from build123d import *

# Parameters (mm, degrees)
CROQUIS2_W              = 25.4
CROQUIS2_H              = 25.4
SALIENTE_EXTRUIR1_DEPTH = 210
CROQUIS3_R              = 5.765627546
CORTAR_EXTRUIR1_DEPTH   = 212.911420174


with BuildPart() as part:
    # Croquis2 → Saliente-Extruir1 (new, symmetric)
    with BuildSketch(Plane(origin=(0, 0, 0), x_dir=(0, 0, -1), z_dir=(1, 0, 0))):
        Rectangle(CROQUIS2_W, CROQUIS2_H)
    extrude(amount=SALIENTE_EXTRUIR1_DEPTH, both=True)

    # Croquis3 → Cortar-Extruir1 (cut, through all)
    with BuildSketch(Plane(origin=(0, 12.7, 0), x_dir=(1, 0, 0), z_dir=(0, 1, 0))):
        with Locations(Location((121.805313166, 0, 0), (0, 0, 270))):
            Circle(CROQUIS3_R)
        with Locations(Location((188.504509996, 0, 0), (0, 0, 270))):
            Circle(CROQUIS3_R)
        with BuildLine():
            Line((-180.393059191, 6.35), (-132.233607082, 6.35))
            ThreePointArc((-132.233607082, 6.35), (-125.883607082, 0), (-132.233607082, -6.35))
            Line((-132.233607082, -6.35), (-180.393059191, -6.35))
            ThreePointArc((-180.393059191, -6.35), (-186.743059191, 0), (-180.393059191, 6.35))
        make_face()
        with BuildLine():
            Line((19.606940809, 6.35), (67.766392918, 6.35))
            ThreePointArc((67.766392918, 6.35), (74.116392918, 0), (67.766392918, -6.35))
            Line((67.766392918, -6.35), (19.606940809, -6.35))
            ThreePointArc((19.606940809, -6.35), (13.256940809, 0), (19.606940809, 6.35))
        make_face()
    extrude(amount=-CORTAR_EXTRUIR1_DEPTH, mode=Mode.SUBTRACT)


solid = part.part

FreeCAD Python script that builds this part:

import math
import FreeCAD as App
import Part
import Sketcher

V = App.Vector
Q = App.Units.Quantity


def add_polygon(sketch, points):
    """Adds a closed chain of lines whose ends are joined by coincident constraints."""
    first, n = sketch.GeometryCount, len(points)
    for a, b in zip(points, points[1:] + points[:1]):
        sketch.addGeometry(Part.LineSegment(App.Vector(*a, 0), App.Vector(*b, 0)), False)
    for i in range(n):
        sketch.addConstraint(Sketcher.Constraint("Coincident", first + i, 2, first + (i + 1) % n, 1))

doc = App.newDocument("Part")
body = doc.addObject("PartDesign::Body", "Body")

sketch1 = body.newObject("Sketcher::SketchObject", "Sketch")
sketch1.AttachmentSupport = (doc.getObject("YZ_Plane"), [""])
sketch1.MapMode = "FlatFace"
add_polygon(sketch1, [(13, 13), (-13, 13), (-13, -13), (13, -13)])
sketch1.addConstraint(Sketcher.Constraint("Horizontal", 0))
sketch1.addConstraint(Sketcher.Constraint("Vertical", 1))
sketch1.addConstraint(Sketcher.Constraint("Horizontal", 2))
sketch1.addConstraint(Sketcher.Constraint("Vertical", 3))
sketch1.addConstraint(Sketcher.Constraint("Symmetric", 0, 2, 2, 2, -1, 1))
sketch1.addConstraint(Sketcher.Constraint("Equal", 2, 1))
sketch1.addConstraint(Sketcher.Constraint("DistanceX", 0, 2, 0, 1, Q("1 in")))
pad1 = body.newObject("PartDesign::Pad", "Pad")
pad1.Profile = sketch1
pad1.Length = 420
pad1.Midplane = True

sketch2 = body.newObject("Sketcher::SketchObject", "Sketch001")
sketch2.AttachmentSupport = (doc.getObject("XZ_Plane"), [""])
sketch2.MapMode = "FlatFace"
sketch2.AttachmentOffset = App.Placement(V(0, 0, -0.5 * 25.4), App.Rotation())
sketch2.addGeometry(Part.Circle(V(122, 0, 0), V(0, 0, 1), 6), False)
sketch2.addGeometry(Part.Circle(V(189, 0, 0), V(0, 0, 1), 6), False)
sketch2.addGeometry(Part.LineSegment(V(-132, -6, 0), V(-180, -6, 0)), False)
sketch2.addGeometry(Part.ArcOfCircle(Part.Circle(V(-180, 0, 0), V(0, 0, 1), 6), math.radians(90), math.radians(270)), False)
sketch2.addGeometry(Part.LineSegment(V(-180, 6, 0), V(-132, 6, 0)), False)
sketch2.addGeometry(Part.ArcOfCircle(Part.Circle(V(-132, 0, 0), V(0, 0, 1), 6), math.radians(-90), math.radians(90)), False)
sketch2.addGeometry(Part.LineSegment(V(68, -6, 0), V(20, -6, 0)), False)
sketch2.addGeometry(Part.ArcOfCircle(Part.Circle(V(20, 0, 0), V(0, 0, 1), 6), math.radians(90), math.radians(270)), False)
sketch2.addGeometry(Part.LineSegment(V(20, 6, 0), V(68, 6, 0)), False)
sketch2.addGeometry(Part.ArcOfCircle(Part.Circle(V(68, 0, 0), V(0, 0, 1), 6), math.radians(-90), math.radians(90)), False)
sketch2.addConstraint(Sketcher.Constraint("Tangent", 2, 2, 3, 2))
sketch2.addConstraint(Sketcher.Constraint("Tangent", 3, 1, 4, 1))
sketch2.addConstraint(Sketcher.Constraint("Tangent", 4, 2, 5, 2))
sketch2.addConstraint(Sketcher.Constraint("Tangent", 5, 1, 2, 1))
sketch2.addConstraint(Sketcher.Constraint("Tangent", 6, 2, 7, 2))
sketch2.addConstraint(Sketcher.Constraint("Tangent", 7, 1, 8, 1))
sketch2.addConstraint(Sketcher.Constraint("Tangent", 8, 2, 9, 2))
sketch2.addConstraint(Sketcher.Constraint("Tangent", 9, 1, 6, 1))
sketch2.addConstraint(Sketcher.Constraint("Horizontal", 2))
sketch2.addConstraint(Sketcher.Constraint("Horizontal", 4))
sketch2.addConstraint(Sketcher.Constraint("Horizontal", 6))
sketch2.addConstraint(Sketcher.Constraint("Horizontal", 8))
sketch2.addConstraint(Sketcher.Constraint("Equal", 0, 1))
sketch2.addConstraint(Sketcher.Constraint("Equal", 5, 7))
sketch2.addConstraint(Sketcher.Constraint("PointOnObject", 0, 3, -1))
sketch2.addConstraint(Sketcher.Constraint("PointOnObject", 1, 3, -1))
sketch2.addConstraint(Sketcher.Constraint("PointOnObject", 3, 3, -1))
sketch2.addConstraint(Sketcher.Constraint("PointOnObject", 7, 3, -1))
sketch2.addConstraint(Sketcher.Constraint("Equal", 4, 6))
sketch2.addConstraint(Sketcher.Constraint("Radius", 3, Q("0.25 in")))
sketch2.addConstraint(Sketcher.Constraint("Diameter", 0, 11.531255))
sketch2.addConstraint(Sketcher.Constraint("DistanceX", 3, 3, 7, 3, 200.0))
sketch2.addConstraint(Sketcher.Constraint("DistanceX", 2, 2, 2, 1, 48.159452))
sketch2.addConstraint(Sketcher.Constraint("DistanceX", -1, 1, 1, 3, 188.50451))
sketch2.addConstraint(Sketcher.Constraint("DistanceX", 3, 3, -1, 1, 180.393059))
sketch2.addConstraint(Sketcher.Constraint("DistanceX", 5, 3, 0, 3, 254.03892))
pocket1 = body.newObject("PartDesign::Pocket", "Pocket")
pocket1.Profile = sketch2
pocket1.Type = "ThroughAll"
pocket1.Reversed = True

doc.recompute()
